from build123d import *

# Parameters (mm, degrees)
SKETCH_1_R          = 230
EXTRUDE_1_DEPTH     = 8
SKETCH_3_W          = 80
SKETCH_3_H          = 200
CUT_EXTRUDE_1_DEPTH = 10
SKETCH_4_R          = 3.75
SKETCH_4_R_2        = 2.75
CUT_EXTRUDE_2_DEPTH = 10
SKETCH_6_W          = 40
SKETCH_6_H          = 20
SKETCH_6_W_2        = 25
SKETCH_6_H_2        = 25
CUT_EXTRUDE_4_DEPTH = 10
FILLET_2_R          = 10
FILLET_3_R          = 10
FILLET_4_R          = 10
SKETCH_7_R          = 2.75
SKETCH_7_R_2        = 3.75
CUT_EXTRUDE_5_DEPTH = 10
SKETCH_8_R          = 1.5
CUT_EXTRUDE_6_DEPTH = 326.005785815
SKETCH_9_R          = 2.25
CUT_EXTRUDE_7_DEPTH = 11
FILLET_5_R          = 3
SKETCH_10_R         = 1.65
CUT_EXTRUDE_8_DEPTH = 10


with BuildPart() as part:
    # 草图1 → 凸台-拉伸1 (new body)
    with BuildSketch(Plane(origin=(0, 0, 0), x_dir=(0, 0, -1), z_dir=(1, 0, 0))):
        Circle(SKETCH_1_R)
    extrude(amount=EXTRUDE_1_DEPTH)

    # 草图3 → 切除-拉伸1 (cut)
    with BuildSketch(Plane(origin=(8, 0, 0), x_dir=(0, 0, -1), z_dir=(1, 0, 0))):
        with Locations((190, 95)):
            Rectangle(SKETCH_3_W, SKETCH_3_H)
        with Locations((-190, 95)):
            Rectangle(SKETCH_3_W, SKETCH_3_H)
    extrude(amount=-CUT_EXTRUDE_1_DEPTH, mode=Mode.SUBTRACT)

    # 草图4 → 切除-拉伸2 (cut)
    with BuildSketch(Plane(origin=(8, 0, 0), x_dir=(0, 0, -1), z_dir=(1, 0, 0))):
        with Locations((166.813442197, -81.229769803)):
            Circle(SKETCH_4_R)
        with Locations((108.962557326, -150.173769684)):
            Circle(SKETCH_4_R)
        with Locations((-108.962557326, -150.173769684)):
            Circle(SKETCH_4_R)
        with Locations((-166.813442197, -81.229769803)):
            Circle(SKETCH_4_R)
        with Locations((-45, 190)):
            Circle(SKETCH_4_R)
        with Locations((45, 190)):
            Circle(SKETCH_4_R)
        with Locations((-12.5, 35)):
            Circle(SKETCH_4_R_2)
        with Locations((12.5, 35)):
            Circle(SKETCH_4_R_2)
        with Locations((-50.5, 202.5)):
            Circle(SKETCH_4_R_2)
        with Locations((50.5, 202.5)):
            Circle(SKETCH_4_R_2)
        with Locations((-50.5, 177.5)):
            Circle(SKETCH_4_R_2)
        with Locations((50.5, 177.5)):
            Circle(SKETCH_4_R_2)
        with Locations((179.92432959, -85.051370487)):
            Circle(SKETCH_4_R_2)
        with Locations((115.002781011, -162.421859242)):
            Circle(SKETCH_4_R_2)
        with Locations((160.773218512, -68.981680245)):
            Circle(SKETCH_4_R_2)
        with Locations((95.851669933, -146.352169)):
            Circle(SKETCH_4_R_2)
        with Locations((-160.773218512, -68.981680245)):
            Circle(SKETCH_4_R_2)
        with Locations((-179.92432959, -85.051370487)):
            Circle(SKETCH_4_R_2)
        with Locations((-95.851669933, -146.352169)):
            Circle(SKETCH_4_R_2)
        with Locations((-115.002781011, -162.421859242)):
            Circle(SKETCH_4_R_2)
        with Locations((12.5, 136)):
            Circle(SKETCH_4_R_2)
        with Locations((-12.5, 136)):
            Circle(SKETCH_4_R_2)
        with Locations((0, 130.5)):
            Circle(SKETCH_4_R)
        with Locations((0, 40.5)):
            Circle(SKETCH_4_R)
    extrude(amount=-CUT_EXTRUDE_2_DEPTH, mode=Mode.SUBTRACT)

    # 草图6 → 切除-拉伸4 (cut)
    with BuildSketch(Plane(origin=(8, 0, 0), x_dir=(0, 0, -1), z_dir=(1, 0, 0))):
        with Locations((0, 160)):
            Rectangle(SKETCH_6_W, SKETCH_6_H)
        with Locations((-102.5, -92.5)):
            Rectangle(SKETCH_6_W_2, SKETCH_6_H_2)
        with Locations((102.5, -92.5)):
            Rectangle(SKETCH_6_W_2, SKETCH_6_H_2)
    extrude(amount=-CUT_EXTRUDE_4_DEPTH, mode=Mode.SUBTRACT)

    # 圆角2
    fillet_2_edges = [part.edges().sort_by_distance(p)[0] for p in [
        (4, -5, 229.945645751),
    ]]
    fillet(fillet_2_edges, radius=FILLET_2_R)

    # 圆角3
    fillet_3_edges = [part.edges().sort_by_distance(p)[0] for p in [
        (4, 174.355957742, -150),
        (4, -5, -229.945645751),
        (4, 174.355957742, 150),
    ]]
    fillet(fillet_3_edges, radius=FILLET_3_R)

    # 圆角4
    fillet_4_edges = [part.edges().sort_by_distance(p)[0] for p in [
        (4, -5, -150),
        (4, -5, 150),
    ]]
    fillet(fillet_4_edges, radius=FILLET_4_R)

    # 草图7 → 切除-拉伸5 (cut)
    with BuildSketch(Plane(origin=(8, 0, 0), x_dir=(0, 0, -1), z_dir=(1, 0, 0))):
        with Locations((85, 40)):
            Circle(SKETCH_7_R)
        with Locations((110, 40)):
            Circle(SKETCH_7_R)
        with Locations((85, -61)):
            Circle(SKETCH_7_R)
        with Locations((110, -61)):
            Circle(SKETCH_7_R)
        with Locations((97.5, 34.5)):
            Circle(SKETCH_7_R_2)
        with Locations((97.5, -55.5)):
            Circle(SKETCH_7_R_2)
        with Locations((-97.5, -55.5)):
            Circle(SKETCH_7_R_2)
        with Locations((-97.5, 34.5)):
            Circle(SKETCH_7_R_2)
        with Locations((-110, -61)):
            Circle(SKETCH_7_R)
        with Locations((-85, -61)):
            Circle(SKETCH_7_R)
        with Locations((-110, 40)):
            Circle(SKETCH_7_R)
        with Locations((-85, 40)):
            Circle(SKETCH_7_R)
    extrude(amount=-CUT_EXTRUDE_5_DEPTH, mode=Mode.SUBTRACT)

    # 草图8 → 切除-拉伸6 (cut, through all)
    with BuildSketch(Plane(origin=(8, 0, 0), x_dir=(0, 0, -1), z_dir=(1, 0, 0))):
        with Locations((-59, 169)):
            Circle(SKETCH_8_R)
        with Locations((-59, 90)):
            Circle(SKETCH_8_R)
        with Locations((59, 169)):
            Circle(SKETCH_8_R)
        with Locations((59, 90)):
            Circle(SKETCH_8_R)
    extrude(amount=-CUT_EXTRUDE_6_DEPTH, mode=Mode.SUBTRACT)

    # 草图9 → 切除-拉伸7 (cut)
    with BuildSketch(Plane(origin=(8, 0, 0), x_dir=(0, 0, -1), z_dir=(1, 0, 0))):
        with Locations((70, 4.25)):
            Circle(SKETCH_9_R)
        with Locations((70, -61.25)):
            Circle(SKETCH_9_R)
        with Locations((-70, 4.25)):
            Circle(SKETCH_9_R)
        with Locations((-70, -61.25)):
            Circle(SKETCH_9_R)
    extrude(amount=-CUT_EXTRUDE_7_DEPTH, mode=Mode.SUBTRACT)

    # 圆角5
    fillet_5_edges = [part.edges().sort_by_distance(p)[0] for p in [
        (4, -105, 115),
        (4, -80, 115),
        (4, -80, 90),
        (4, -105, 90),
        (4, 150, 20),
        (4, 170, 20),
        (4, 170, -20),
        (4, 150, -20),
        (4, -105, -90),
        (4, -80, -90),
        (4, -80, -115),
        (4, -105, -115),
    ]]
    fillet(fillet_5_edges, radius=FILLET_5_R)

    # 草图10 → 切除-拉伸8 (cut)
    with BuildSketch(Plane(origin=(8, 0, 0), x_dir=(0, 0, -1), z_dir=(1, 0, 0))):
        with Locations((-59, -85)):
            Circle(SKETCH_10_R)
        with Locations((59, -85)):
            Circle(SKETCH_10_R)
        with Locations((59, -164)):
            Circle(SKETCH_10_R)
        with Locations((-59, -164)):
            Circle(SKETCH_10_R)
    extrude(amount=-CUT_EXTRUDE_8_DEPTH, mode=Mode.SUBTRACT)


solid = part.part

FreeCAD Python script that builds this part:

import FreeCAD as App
import Part
import Sketcher
Q = App.Units.Quantity


def edges_at(feature, points):
    """Names of the edges that pass closest to the given points."""
    edges = feature.Shape.Edges
    near = lambda p: min(range(len(edges)), key=lambda i: edges[i].distToShape(Part.Vertex(*p))[0])
    return sorted({f"Edge{near(p) + 1}" for p in points})


def add_polygon(sketch, points):
    """Adds a closed chain of lines whose ends are joined by coincident constraints."""
    first, n = sketch.GeometryCount, len(points)
    for a, b in zip(points, points[1:] + points[:1]):
        sketch.addGeometry(Part.LineSegment(App.Vector(*a, 0), App.Vector(*b, 0)), False)
    for i in range(n):
        sketch.addConstraint(Sketcher.Constraint("Coincident", first + i, 2, first + (i + 1) % n, 1))

doc = App.newDocument("Part")
params = doc.addObject("Spreadsheet::Sheet", "Params")
for row, (alias, value) in enumerate([
    ("sketch1_diameter", "460 mm"),
    ("pad1_length", "8 mm"),
    ("sketch2_width", "200 mm"),
    ("sketch2_height", "80 mm"),
    ("pocket1_length", "10 mm"),
    ("sketch3_diameter", "7.5 mm"),
    ("sketch3_diameter2", "5.5 mm"),
    ("pocket2_length", "10 mm"),
    ("sketch4_width", "20 mm"),
    ("sketch4_width2", "25 mm"),
    ("sketch4_height", "40 mm"),
    ("pocket3_length", "10 mm"),
    ("fillet_radius", "10 mm"),
    ("fillet2_radius", "10 mm"),
    ("fillet3_radius", "10 mm"),
    ("sketch5_diameter", "5.5 mm"),
    ("sketch5_diameter2", "7.5 mm"),
    ("pocket4_length", "10 mm"),
    ("sketch6_diameter", "3 mm"),
    ("sketch7_diameter", "4.5 mm"),
    ("pocket6_length", "11 mm"),
    ("fillet4_radius", "3 mm"),
    ("sketch8_diameter", "3.3 mm"),
    ("pocket7_length", "10 mm"),
], start=1):
    params.set(f"A{row}", alias)
    params.set(f"B{row}", "=" + value)
    params.setAlias(f"B{row}", alias)

body = doc.addObject("PartDesign::Body", "Body")

sketch1 = body.newObject("Sketcher::SketchObject", "Sketch")
sketch1.AttachmentSupport = (doc.getObject("YZ_Plane"), [""])
sketch1.MapMode = "FlatFace"
sketch1.addGeometry(Part.Circle(App.Vector(0, 0, 0), App.Vector(0, 0, 1), 230), False)
sketch1.addConstraint([
    Sketcher.Constraint("Coincident", 0, 3, -1, 1),
    Sketcher.Constraint("Diameter", 0, Q("460 mm")),
])
sketch1.setExpression("Constraints[1]", "Params.sketch1_diameter")
pad1 = body.newObject("PartDesign::Pad", "Pad")
pad1.Profile = sketch1
pad1.setExpression("Length", "Params.pad1_length")

sketch2 = body.newObject("Sketcher::SketchObject", "Sketch001")
sketch2.AttachmentSupport = (doc.getObject("YZ_Plane"), [""])
sketch2.MapMode = "FlatFace"
sketch2.AttachmentOffset = App.Placement(App.Vector(0, 0, 8), App.Rotation())
add_polygon(sketch2, [(195, -150), (-5, -150), (-5, -230), (195, -230)])
add_polygon(sketch2, [(195, 230), (-5, 230), (-5, 150), (195, 150)])
sketch2.addConstraint([
    Sketcher.Constraint("Horizontal", 0),
    Sketcher.Constraint("Vertical", 1),
    Sketcher.Constraint("Horizontal", 2),
    Sketcher.Constraint("Vertical", 3),
    Sketcher.Constraint("Horizontal", 4),
    Sketcher.Constraint("Vertical", 5),
    Sketcher.Constraint("Horizontal", 6),
    Sketcher.Constraint("Vertical", 7),
    Sketcher.Constraint("Symmetric", 1, 2, 4, 2, -1),
    Sketcher.Constraint("Symmetric", 3, 2, 6, 2, -1),
    Sketcher.Constraint("DistanceX", 0, 2, 0, 1, Q("200 mm")),
    Sketcher.Constraint("DistanceY", 1, 2, 1, 1, Q("80 mm")),
    Sketcher.Constraint("DistanceX", 0, 2, -1, 1, Q("5 mm")),
    Sketcher.Constraint("DistanceY", 0, 2, -1, 1, Q("150 mm")),
])
sketch2.setExpression("Constraints[18]", "Params.sketch2_width")
sketch2.setExpression("Constraints[19]", "Params.sketch2_height")
pocket1 = body.newObject("PartDesign::Pocket", "Pocket")
pocket1.Profile = sketch2
pocket1.setExpression("Length", "Params.pocket1_length")

sketch3 = body.newObject("Sketcher::SketchObject", "Sketch002")
sketch3.AttachmentSupport = (doc.getObject("YZ_Plane"), [""])
sketch3.MapMode = "FlatFace"
sketch3.AttachmentOffset = App.Placement(App.Vector(0, 0, 8), App.Rotation())
sketch3.addGeometry([
    Part.Circle(App.Vector(-81.22977, -166.813442, 0), App.Vector(0, 0, 1), 3.75),
    Part.Circle(App.Vector(-150.17377, -108.962557, 0), App.Vector(0, 0, 1), 3.75),
    Part.Circle(App.Vector(-150.17377, 108.962557, 0), App.Vector(0, 0, 1), 3.75),
    Part.Circle(App.Vector(-81.22977, 166.813442, 0), App.Vector(0, 0, 1), 3.75),
    Part.Circle(App.Vector(190, 45, 0), App.Vector(0, 0, 1), 3.75),
    Part.Circle(App.Vector(190, -45, 0), App.Vector(0, 0, 1), 3.75),
    Part.Circle(App.Vector(35, 12.5, 0), App.Vector(0, 0, 1), 2.75),
    Part.Circle(App.Vector(35, -12.5, 0), App.Vector(0, 0, 1), 2.75),
    Part.Circle(App.Vector(202.5, 50.5, 0), App.Vector(0, 0, 1), 2.75),
    Part.Circle(App.Vector(202.5, -50.5, 0), App.Vector(0, 0, 1), 2.75),
    Part.Circle(App.Vector(177.5, 50.5, 0), App.Vector(0, 0, 1), 2.75),
    Part.Circle(App.Vector(177.5, -50.5, 0), App.Vector(0, 0, 1), 2.75),
    Part.Circle(App.Vector(-85.05137, -179.92433, 0), App.Vector(0, 0, 1), 2.75),
    Part.Circle(App.Vector(-162.421859, -115.002781, 0), App.Vector(0, 0, 1), 2.75),
    Part.Circle(App.Vector(-68.98168, -160.773219, 0), App.Vector(0, 0, 1), 2.75),
    Part.Circle(App.Vector(-146.352169, -95.85167, 0), App.Vector(0, 0, 1), 2.75),
    Part.Circle(App.Vector(-68.98168, 160.773219, 0), App.Vector(0, 0, 1), 2.75),
    Part.Circle(App.Vector(-85.05137, 179.92433, 0), App.Vector(0, 0, 1), 2.75),
    Part.Circle(App.Vector(-146.352169, 95.85167, 0), App.Vector(0, 0, 1), 2.75),
    Part.Circle(App.Vector(-162.421859, 115.002781, 0), App.Vector(0, 0, 1), 2.75),
    Part.Circle(App.Vector(136, -12.5, 0), App.Vector(0, 0, 1), 2.75),
    Part.Circle(App.Vector(136, 12.5, 0), App.Vector(0, 0, 1), 2.75),
    Part.Circle(App.Vector(130.5, 0, 0), App.Vector(0, 0, 1), 3.75),
    Part.Circle(App.Vector(40.5, 0, 0), App.Vector(0, 0, 1), 3.75),
], False)
sketch3.addConstraint([
    Sketcher.Constraint("Equal", 0, 1),
    Sketcher.Constraint("Equal", 1, 2),
    Sketcher.Constraint("Equal", 2, 3),
    Sketcher.Constraint("Equal", 3, 4),
    Sketcher.Constraint("Equal", 4, 5),
    Sketcher.Constraint("Equal", 6, 7),
    Sketcher.Constraint("Equal", 7, 8),
    Sketcher.Constraint("Equal", 8, 9),
    Sketcher.Constraint("Equal", 9, 10),
    Sketcher.Constraint("Equal", 10, 11),
    Sketcher.Constraint("Equal", 11, 12),
    Sketcher.Constraint("Equal", 12, 13),
    Sketcher.Constraint("Equal", 13, 14),
    Sketcher.Constraint("Equal", 14, 15),
    Sketcher.Constraint("Equal", 15, 16),
    Sketcher.Constraint("Equal", 16, 17),
    Sketcher.Constraint("Equal", 17, 18),
    Sketcher.Constraint("Equal", 18, 19),
    Sketcher.Constraint("Equal", 19, 20),
    Sketcher.Constraint("Equal", 20, 21),
    Sketcher.Constraint("Equal", 5, 22),
    Sketcher.Constraint("Equal", 22, 23),
    Sketcher.Constraint("Symmetric", 1, 3, 2, 3, -1),
    Sketcher.Constraint("Symmetric", 0, 3, 3, 3, -1),
    Sketcher.Constraint("Symmetric", 4, 3, 5, 3, -1),
    Sketcher.Constraint("Symmetric", 6, 3, 7, 3, -1),
    Sketcher.Constraint("Symmetric", 8, 3, 9, 3, -1),
    Sketcher.Constraint("Symmetric", 10, 3, 11, 3, -1),
    Sketcher.Constraint("Symmetric", 14, 3, 16, 3, -1),
    Sketcher.Constraint("Symmetric", 12, 3, 17, 3, -1),
    Sketcher.Constraint("Symmetric", 15, 3, 18, 3, -1),
    Sketcher.Constraint("Symmetric", 13, 3, 19, 3, -1),
    Sketcher.Constraint("Symmetric", 20, 3, 21, 3, -1),
    Sketcher.Constraint("PointOnObject", 22, 3, -1),
    Sketcher.Constraint("PointOnObject", 23, 3, -1),
    Sketcher.Constraint("Horizontal", 8, 3, 10, 3),
    Sketcher.Constraint("Horizontal", 7, 3, 20, 3),
    Sketcher.Constraint("Diameter", 0, Q("7.5 mm")),
    Sketcher.Constraint("Diameter", 6, Q("5.5 mm")),
    Sketcher.Constraint("DistanceX", -1, 1, 4, 3, Q("190 mm")),
    Sketcher.Constraint("DistanceY", -1, 1, 4, 3, Q("45 mm")),
    Sketcher.Constraint("DistanceX", -1, 1, 6, 3, Q("35 mm")),
    Sketcher.Constraint("DistanceX", -1, 1, 20, 3, Q("136 mm")),
    Sketcher.Constraint("DistanceY", 7, 3, 6, 3, Q("25 mm")),
    Sketcher.Constraint("DistanceY", 6, 3, 8, 3, Q("38 mm")),
    Sketcher.Constraint("DistanceX", 10, 3, 8, 3, Q("25 mm")),
    Sketcher.Constraint("DistanceX", 22, 3, 10, 3, Q("47 mm")),
    Sketcher.Constraint("DistanceX", 23, 3, 22, 3, Q("90 mm")),
    Sketcher.Constraint("DistanceX", -1, 1, 8, 3, Q("202.5 mm")),
    Sketcher.Constraint("DistanceX", 1, 3, 0, 3, Q("68.944 mm")),
    Sketcher.Constraint("DistanceY", 0, 3, 2, 3, Q("275.776 mm")),
    Sketcher.Constraint("DistanceX", 12, 3, 0, 3, Q("3.821601 mm")),
    Sketcher.Constraint("DistanceX", 1, 3, 15, 3, Q("3.821601 mm")),
    Sketcher.Constraint("DistanceX", 0, 3, -1, 1, Q("81.22977 mm")),
    Sketcher.Constraint("DistanceY", 12, 3, -1, 1, Q("179.92433 mm")),
    Sketcher.Constraint("DistanceX", 13, 3, -1, 1, Q("162.421859 mm")),
    Sketcher.Constraint("DistanceY", 13, 3, -1, 1, Q("115.002781 mm")),
    Sketcher.Constraint("DistanceX", 14, 3, -1, 1, Q("68.98168 mm")),
    Sketcher.Constraint("DistanceY", 14, 3, -1, 1, Q("160.773219 mm")),
    Sketcher.Constraint("DistanceY", 15, 3, -1, 1, Q("95.85167 mm")),
    Sketcher.Constraint("DistanceY", 0, 3, 13, 3, Q("51.810661 mm")),
])
sketch3.setExpression("Constraints[37]", "Params.sketch3_diameter")
sketch3.setExpression("Constraints[38]", "Params.sketch3_diameter2")
pocket2 = body.newObject("PartDesign::Pocket", "Pocket001")
pocket2.Profile = sketch3
pocket2.setExpression("Length", "Params.pocket2_length")

sketch4 = body.newObject("Sketcher::SketchObject", "Sketch003")
sketch4.AttachmentSupport = (doc.getObject("YZ_Plane"), [""])
sketch4.MapMode = "FlatFace"
sketch4.AttachmentOffset = App.Placement(App.Vector(0, 0, 8), App.Rotation())
add_polygon(sketch4, [(170, 20), (150, 20), (150, -20), (170, -20)])
add_polygon(sketch4, [(-80, 115), (-105, 115), (-105, 90), (-80, 90)])
add_polygon(sketch4, [(-80, -90), (-105, -90), (-105, -115), (-80, -115)])
sketch4.addConstraint([
    Sketcher.Constraint("Horizontal", 0),
    Sketcher.Constraint("Vertical", 1),
    Sketcher.Constraint("Horizontal", 2),
    Sketcher.Constraint("Vertical", 3),
    Sketcher.Constraint("Horizontal", 4),
    Sketcher.Constraint("Vertical", 5),
    Sketcher.Constraint("Horizontal", 6),
    Sketcher.Constraint("Vertical", 7),
    Sketcher.Constraint("Horizontal", 8),
    Sketcher.Constraint("Vertical", 9),
    Sketcher.Constraint("Horizontal", 10),
    Sketcher.Constraint("Vertical", 11),
    Sketcher.Constraint("Symmetric", 5, 2, 8, 2, -1),
    Sketcher.Constraint("Symmetric", 7, 2, 10, 2, -1),
    Sketcher.Constraint("Equal", 10, 5),
    Sketcher.Constraint("DistanceX", 0, 2, 0, 1, Q("20 mm")),
    Sketcher.Constraint("DistanceX", 4, 2, 4, 1, Q("25 mm")),
    Sketcher.Constraint("DistanceY", 1, 2, 1, 1, Q("40 mm")),
    Sketcher.Constraint("DistanceX", -1, 1, 0, 2, Q("150 mm")),
    Sketcher.Constraint("DistanceY", -1, 1, 0, 2, Q("20 mm")),
    Sketcher.Constraint("DistanceX", 4, 2, -1, 1, Q("105 mm")),
    Sketcher.Constraint("DistanceY", -1, 1, 4, 2, Q("115 mm")),
])
sketch4.setExpression("Constraints[27]", "Params.sketch4_width")
sketch4.setExpression("Constraints[28]", "Params.sketch4_width2")
sketch4.setExpression("Constraints[29]", "Params.sketch4_height")
pocket3 = body.newObject("PartDesign::Pocket", "Pocket002")
pocket3.Profile = sketch4
pocket3.setExpression("Length", "Params.pocket3_length")
doc.recompute()

fillet = body.newObject("PartDesign::Fillet", "Fillet")
fillet.Base = (pocket3, edges_at(pocket3, [(4, -5, 229.946)]))
fillet.setExpression("Radius", "Params.fillet_radius")
doc.recompute()

fillet2 = body.newObject("PartDesign::Fillet", "Fillet001")
fillet2.Base = (fillet, edges_at(fillet, [(4, 174.356, -150), (4, -5, -229.946), (4, 174.356, 150)]))
fillet2.setExpression("Radius", "Params.fillet2_radius")
doc.recompute()

fillet3 = body.newObject("PartDesign::Fillet", "Fillet002")
fillet3.Base = (fillet2, edges_at(fillet2, [(4, -5, -150), (4, -5, 150)]))
fillet3.setExpression("Radius", "Params.fillet3_radius")

sketch5 = body.newObject("Sketcher::SketchObject", "Sketch004")
sketch5.AttachmentSupport = (doc.getObject("YZ_Plane"), [""])
sketch5.MapMode = "FlatFace"
sketch5.AttachmentOffset = App.Placement(App.Vector(0, 0, 8), App.Rotation())
sketch5.addGeometry([
    Part.Circle(App.Vector(40, -85, 0), App.Vector(0, 0, 1), 2.75),
    Part.Circle(App.Vector(40, -110, 0), App.Vector(0, 0, 1), 2.75),
    Part.Circle(App.Vector(-61, -85, 0), App.Vector(0, 0, 1), 2.75),
    Part.Circle(App.Vector(-61, -110, 0), App.Vector(0, 0, 1), 2.75),
    Part.Circle(App.Vector(34.5, -97.5, 0), App.Vector(0, 0, 1), 3.75),
    Part.Circle(App.Vector(-55.5, -97.5, 0), App.Vector(0, 0, 1), 3.75),
    Part.Circle(App.Vector(-55.5, 97.5, 0), App.Vector(0, 0, 1), 3.75),
    Part.Circle(App.Vector(34.5, 97.5, 0), App.Vector(0, 0, 1), 3.75),
    Part.Circle(App.Vector(-61, 110, 0), App.Vector(0, 0, 1), 2.75),
    Part.Circle(App.Vector(-61, 85, 0), App.Vector(0, 0, 1), 2.75),
    Part.Circle(App.Vector(40, 110, 0), App.Vector(0, 0, 1), 2.75),
    Part.Circle(App.Vector(40, 85, 0), App.Vector(0, 0, 1), 2.75),
], False)
sketch5.addConstraint([
    Sketcher.Constraint("Equal", 0, 1),
    Sketcher.Constraint("Equal", 1, 2),
    Sketcher.Constraint("Equal", 2, 3),
    Sketcher.Constraint("Equal", 4, 5),
    Sketcher.Constraint("Equal", 5, 6),
    Sketcher.Constraint("Equal", 6, 7),
    Sketcher.Constraint("Equal", 3, 8),
    Sketcher.Constraint("Equal", 8, 9),
    Sketcher.Constraint("Equal", 9, 10),
    Sketcher.Constraint("Equal", 10, 11),
    Sketcher.Constraint("Symmetric", 5, 3, 6, 3, -1),
    Sketcher.Constraint("Symmetric", 4, 3, 7, 3, -1),
    Sketcher.Constraint("Symmetric", 3, 3, 8, 3, -1),
    Sketcher.Constraint("Symmetric", 2, 3, 9, 3, -1),
    Sketcher.Constraint("Symmetric", 1, 3, 10, 3, -1),
    Sketcher.Constraint("Symmetric", 0, 3, 11, 3, -1),
    Sketcher.Constraint("Horizontal", 0, 3, 2, 3),
    Sketcher.Constraint("Horizontal", 1, 3, 3, 3),
    Sketcher.Constraint("Horizontal", 4, 3, 5, 3),
    Sketcher.Constraint("Vertical", 0, 3, 1, 3),
    Sketcher.Constraint("Vertical", 2, 3, 3, 3),
    Sketcher.Constraint("Diameter", 0, Q("5.5 mm")),
    Sketcher.Constraint("Diameter", 4, Q("7.5 mm")),
    Sketcher.Constraint("DistanceX", -1, 1, 0, 3, Q("40 mm")),
    Sketcher.Constraint("DistanceY", 0, 3, -1, 1, Q("85 mm")),
    Sketcher.Constraint("DistanceY", 1, 3, -1, 1, Q("110 mm")),
    Sketcher.Constraint("DistanceX", 2, 3, -1, 1, Q("61 mm")),
    Sketcher.Constraint("DistanceX", 5, 3, 4, 3, Q("90 mm")),
    Sketcher.Constraint("DistanceY", 5, 3, 6, 3, Q("195 mm")),
    Sketcher.Constraint("DistanceX", -1, 1, 4, 3, Q("34.5 mm")),
])
sketch5.setExpression("Constraints[21]", "Params.sketch5_diameter")
sketch5.setExpression("Constraints[22]", "Params.sketch5_diameter2")
pocket4 = body.newObject("PartDesign::Pocket", "Pocket003")
pocket4.Profile = sketch5
pocket4.setExpression("Length", "Params.pocket4_length")

sketch6 = body.newObject("Sketcher::SketchObject", "Sketch005")
sketch6.AttachmentSupport = (doc.getObject("YZ_Plane"), [""])
sketch6.MapMode = "FlatFace"
sketch6.AttachmentOffset = App.Placement(App.Vector(0, 0, 8), App.Rotation())
sketch6.addGeometry([
    Part.Circle(App.Vector(169, 59, 0), App.Vector(0, 0, 1), 1.5),
    Part.Circle(App.Vector(90, 59, 0), App.Vector(0, 0, 1), 1.5),
    Part.Circle(App.Vector(169, -59, 0), App.Vector(0, 0, 1), 1.5),
    Part.Circle(App.Vector(90, -59, 0), App.Vector(0, 0, 1), 1.5),
], False)
sketch6.addConstraint([
    Sketcher.Constraint("Equal", 0, 1),
    Sketcher.Constraint("Equal", 1, 2),
    Sketcher.Constraint("Equal", 2, 3),
    Sketcher.Constraint("Symmetric", 0, 3, 2, 3, -1),
    Sketcher.Constraint("Symmetric", 1, 3, 3, 3, -1),
    Sketcher.Constraint("Horizontal", 0, 3, 1, 3),
    Sketcher.Constraint("Diameter", 0, Q("3 mm")),
    Sketcher.Constraint("DistanceX", -1, 1, 0, 3, Q("169 mm")),
    Sketcher.Constraint("DistanceY", -1, 1, 0, 3, Q("59 mm")),
    Sketcher.Constraint("DistanceX", -1, 1, 1, 3, Q("90 mm")),
])
sketch6.setExpression("Constraints[6]", "Params.sketch6_diameter")
pocket5 = body.newObject("PartDesign::Pocket", "Pocket004")
pocket5.Profile = sketch6
pocket5.Type = "ThroughAll"

sketch7 = body.newObject("Sketcher::SketchObject", "Sketch006")
sketch7.AttachmentSupport = (doc.getObject("YZ_Plane"), [""])
sketch7.MapMode = "FlatFace"
sketch7.AttachmentOffset = App.Placement(App.Vector(0, 0, 8), App.Rotation())
sketch7.addGeometry([
    Part.Circle(App.Vector(4.25, -70, 0), App.Vector(0, 0, 1), 2.25),
    Part.Circle(App.Vector(-61.25, -70, 0), App.Vector(0, 0, 1), 2.25),
    Part.Circle(App.Vector(4.25, 70, 0), App.Vector(0, 0, 1), 2.25),
    Part.Circle(App.Vector(-61.25, 70, 0), App.Vector(0, 0, 1), 2.25),
], False)
sketch7.addConstraint([
    Sketcher.Constraint("Equal", 0, 1),
    Sketcher.Constraint("Equal", 1, 2),
    Sketcher.Constraint("Equal", 2, 3),
    Sketcher.Constraint("Symmetric", 0, 3, 2, 3, -1),
    Sketcher.Constraint("Symmetric", 1, 3, 3, 3, -1),
    Sketcher.Constraint("Horizontal", 0, 3, 1, 3),
    Sketcher.Constraint("Diameter", 0, Q("4.5 mm")),
    Sketcher.Constraint("DistanceY", 0, 3, -1, 1, Q("70 mm")),
    Sketcher.Constraint("DistanceX", 1, 3, 0, 3, Q("65.5 mm")),
    Sketcher.Constraint("DistanceX", -1, 1, 0, 3, Q("4.25 mm")),
])
sketch7.setExpression("Constraints[6]", "Params.sketch7_diameter")
pocket6 = body.newObject("PartDesign::Pocket", "Pocket005")
pocket6.Profile = sketch7
pocket6.setExpression("Length", "Params.pocket6_length")
doc.recompute()

fillet4 = body.newObject("PartDesign::Fillet", "Fillet003")
fillet4.Base = (pocket6, edges_at(pocket6, [
    (4, -105, 115),
    (4, -80, 115),
    (4, -80, 90),
    (4, -105, 90),
    (4, 150, 20),
    (4, 170, 20),
    (4, 170, -20),
    (4, 150, -20),
    (4, -105, -90),
    (4, -80, -90),
    (4, -80, -115),
    (4, -105, -115),
]))
fillet4.setExpression("Radius", "Params.fillet4_radius")

sketch8 = body.newObject("Sketcher::SketchObject", "Sketch007")
sketch8.AttachmentSupport = (doc.getObject("YZ_Plane"), [""])
sketch8.MapMode = "FlatFace"
sketch8.AttachmentOffset = App.Placement(App.Vector(0, 0, 8), App.Rotation())
sketch8.addGeometry([
    Part.Circle(App.Vector(-85, 59, 0), App.Vector(0, 0, 1), 1.65),
    Part.Circle(App.Vector(-85, -59, 0), App.Vector(0, 0, 1), 1.65),
    Part.Circle(App.Vector(-164, -59, 0), App.Vector(0, 0, 1), 1.65),
    Part.Circle(App.Vector(-164, 59, 0), App.Vector(0, 0, 1), 1.65),
], False)
sketch8.addConstraint([
    Sketcher.Constraint("Equal", 0, 1),
    Sketcher.Constraint("Equal", 1, 2),
    Sketcher.Constraint("Equal", 2, 3),
    Sketcher.Constraint("Symmetric", 0, 3, 1, 3, -1),
    Sketcher.Constraint("Symmetric", 2, 3, 3, 3, -1),
    Sketcher.Constraint("Horizontal", 1, 3, 2, 3),
    Sketcher.Constraint("Diameter", 0, Q("3.3 mm")),
    Sketcher.Constraint("DistanceX", 0, 3, -1, 1, Q("85 mm")),
    Sketcher.Constraint("DistanceY", -1, 1, 0, 3, Q("59 mm")),
    Sketcher.Constraint("DistanceX", 2, 3, -1, 1, Q("164 mm")),
])
sketch8.setExpression("Constraints[6]", "Params.sketch8_diameter")
pocket7 = body.newObject("PartDesign::Pocket", "Pocket006")
pocket7.Profile = sketch8
pocket7.setExpression("Length", "Params.pocket7_length")

doc.recompute()
